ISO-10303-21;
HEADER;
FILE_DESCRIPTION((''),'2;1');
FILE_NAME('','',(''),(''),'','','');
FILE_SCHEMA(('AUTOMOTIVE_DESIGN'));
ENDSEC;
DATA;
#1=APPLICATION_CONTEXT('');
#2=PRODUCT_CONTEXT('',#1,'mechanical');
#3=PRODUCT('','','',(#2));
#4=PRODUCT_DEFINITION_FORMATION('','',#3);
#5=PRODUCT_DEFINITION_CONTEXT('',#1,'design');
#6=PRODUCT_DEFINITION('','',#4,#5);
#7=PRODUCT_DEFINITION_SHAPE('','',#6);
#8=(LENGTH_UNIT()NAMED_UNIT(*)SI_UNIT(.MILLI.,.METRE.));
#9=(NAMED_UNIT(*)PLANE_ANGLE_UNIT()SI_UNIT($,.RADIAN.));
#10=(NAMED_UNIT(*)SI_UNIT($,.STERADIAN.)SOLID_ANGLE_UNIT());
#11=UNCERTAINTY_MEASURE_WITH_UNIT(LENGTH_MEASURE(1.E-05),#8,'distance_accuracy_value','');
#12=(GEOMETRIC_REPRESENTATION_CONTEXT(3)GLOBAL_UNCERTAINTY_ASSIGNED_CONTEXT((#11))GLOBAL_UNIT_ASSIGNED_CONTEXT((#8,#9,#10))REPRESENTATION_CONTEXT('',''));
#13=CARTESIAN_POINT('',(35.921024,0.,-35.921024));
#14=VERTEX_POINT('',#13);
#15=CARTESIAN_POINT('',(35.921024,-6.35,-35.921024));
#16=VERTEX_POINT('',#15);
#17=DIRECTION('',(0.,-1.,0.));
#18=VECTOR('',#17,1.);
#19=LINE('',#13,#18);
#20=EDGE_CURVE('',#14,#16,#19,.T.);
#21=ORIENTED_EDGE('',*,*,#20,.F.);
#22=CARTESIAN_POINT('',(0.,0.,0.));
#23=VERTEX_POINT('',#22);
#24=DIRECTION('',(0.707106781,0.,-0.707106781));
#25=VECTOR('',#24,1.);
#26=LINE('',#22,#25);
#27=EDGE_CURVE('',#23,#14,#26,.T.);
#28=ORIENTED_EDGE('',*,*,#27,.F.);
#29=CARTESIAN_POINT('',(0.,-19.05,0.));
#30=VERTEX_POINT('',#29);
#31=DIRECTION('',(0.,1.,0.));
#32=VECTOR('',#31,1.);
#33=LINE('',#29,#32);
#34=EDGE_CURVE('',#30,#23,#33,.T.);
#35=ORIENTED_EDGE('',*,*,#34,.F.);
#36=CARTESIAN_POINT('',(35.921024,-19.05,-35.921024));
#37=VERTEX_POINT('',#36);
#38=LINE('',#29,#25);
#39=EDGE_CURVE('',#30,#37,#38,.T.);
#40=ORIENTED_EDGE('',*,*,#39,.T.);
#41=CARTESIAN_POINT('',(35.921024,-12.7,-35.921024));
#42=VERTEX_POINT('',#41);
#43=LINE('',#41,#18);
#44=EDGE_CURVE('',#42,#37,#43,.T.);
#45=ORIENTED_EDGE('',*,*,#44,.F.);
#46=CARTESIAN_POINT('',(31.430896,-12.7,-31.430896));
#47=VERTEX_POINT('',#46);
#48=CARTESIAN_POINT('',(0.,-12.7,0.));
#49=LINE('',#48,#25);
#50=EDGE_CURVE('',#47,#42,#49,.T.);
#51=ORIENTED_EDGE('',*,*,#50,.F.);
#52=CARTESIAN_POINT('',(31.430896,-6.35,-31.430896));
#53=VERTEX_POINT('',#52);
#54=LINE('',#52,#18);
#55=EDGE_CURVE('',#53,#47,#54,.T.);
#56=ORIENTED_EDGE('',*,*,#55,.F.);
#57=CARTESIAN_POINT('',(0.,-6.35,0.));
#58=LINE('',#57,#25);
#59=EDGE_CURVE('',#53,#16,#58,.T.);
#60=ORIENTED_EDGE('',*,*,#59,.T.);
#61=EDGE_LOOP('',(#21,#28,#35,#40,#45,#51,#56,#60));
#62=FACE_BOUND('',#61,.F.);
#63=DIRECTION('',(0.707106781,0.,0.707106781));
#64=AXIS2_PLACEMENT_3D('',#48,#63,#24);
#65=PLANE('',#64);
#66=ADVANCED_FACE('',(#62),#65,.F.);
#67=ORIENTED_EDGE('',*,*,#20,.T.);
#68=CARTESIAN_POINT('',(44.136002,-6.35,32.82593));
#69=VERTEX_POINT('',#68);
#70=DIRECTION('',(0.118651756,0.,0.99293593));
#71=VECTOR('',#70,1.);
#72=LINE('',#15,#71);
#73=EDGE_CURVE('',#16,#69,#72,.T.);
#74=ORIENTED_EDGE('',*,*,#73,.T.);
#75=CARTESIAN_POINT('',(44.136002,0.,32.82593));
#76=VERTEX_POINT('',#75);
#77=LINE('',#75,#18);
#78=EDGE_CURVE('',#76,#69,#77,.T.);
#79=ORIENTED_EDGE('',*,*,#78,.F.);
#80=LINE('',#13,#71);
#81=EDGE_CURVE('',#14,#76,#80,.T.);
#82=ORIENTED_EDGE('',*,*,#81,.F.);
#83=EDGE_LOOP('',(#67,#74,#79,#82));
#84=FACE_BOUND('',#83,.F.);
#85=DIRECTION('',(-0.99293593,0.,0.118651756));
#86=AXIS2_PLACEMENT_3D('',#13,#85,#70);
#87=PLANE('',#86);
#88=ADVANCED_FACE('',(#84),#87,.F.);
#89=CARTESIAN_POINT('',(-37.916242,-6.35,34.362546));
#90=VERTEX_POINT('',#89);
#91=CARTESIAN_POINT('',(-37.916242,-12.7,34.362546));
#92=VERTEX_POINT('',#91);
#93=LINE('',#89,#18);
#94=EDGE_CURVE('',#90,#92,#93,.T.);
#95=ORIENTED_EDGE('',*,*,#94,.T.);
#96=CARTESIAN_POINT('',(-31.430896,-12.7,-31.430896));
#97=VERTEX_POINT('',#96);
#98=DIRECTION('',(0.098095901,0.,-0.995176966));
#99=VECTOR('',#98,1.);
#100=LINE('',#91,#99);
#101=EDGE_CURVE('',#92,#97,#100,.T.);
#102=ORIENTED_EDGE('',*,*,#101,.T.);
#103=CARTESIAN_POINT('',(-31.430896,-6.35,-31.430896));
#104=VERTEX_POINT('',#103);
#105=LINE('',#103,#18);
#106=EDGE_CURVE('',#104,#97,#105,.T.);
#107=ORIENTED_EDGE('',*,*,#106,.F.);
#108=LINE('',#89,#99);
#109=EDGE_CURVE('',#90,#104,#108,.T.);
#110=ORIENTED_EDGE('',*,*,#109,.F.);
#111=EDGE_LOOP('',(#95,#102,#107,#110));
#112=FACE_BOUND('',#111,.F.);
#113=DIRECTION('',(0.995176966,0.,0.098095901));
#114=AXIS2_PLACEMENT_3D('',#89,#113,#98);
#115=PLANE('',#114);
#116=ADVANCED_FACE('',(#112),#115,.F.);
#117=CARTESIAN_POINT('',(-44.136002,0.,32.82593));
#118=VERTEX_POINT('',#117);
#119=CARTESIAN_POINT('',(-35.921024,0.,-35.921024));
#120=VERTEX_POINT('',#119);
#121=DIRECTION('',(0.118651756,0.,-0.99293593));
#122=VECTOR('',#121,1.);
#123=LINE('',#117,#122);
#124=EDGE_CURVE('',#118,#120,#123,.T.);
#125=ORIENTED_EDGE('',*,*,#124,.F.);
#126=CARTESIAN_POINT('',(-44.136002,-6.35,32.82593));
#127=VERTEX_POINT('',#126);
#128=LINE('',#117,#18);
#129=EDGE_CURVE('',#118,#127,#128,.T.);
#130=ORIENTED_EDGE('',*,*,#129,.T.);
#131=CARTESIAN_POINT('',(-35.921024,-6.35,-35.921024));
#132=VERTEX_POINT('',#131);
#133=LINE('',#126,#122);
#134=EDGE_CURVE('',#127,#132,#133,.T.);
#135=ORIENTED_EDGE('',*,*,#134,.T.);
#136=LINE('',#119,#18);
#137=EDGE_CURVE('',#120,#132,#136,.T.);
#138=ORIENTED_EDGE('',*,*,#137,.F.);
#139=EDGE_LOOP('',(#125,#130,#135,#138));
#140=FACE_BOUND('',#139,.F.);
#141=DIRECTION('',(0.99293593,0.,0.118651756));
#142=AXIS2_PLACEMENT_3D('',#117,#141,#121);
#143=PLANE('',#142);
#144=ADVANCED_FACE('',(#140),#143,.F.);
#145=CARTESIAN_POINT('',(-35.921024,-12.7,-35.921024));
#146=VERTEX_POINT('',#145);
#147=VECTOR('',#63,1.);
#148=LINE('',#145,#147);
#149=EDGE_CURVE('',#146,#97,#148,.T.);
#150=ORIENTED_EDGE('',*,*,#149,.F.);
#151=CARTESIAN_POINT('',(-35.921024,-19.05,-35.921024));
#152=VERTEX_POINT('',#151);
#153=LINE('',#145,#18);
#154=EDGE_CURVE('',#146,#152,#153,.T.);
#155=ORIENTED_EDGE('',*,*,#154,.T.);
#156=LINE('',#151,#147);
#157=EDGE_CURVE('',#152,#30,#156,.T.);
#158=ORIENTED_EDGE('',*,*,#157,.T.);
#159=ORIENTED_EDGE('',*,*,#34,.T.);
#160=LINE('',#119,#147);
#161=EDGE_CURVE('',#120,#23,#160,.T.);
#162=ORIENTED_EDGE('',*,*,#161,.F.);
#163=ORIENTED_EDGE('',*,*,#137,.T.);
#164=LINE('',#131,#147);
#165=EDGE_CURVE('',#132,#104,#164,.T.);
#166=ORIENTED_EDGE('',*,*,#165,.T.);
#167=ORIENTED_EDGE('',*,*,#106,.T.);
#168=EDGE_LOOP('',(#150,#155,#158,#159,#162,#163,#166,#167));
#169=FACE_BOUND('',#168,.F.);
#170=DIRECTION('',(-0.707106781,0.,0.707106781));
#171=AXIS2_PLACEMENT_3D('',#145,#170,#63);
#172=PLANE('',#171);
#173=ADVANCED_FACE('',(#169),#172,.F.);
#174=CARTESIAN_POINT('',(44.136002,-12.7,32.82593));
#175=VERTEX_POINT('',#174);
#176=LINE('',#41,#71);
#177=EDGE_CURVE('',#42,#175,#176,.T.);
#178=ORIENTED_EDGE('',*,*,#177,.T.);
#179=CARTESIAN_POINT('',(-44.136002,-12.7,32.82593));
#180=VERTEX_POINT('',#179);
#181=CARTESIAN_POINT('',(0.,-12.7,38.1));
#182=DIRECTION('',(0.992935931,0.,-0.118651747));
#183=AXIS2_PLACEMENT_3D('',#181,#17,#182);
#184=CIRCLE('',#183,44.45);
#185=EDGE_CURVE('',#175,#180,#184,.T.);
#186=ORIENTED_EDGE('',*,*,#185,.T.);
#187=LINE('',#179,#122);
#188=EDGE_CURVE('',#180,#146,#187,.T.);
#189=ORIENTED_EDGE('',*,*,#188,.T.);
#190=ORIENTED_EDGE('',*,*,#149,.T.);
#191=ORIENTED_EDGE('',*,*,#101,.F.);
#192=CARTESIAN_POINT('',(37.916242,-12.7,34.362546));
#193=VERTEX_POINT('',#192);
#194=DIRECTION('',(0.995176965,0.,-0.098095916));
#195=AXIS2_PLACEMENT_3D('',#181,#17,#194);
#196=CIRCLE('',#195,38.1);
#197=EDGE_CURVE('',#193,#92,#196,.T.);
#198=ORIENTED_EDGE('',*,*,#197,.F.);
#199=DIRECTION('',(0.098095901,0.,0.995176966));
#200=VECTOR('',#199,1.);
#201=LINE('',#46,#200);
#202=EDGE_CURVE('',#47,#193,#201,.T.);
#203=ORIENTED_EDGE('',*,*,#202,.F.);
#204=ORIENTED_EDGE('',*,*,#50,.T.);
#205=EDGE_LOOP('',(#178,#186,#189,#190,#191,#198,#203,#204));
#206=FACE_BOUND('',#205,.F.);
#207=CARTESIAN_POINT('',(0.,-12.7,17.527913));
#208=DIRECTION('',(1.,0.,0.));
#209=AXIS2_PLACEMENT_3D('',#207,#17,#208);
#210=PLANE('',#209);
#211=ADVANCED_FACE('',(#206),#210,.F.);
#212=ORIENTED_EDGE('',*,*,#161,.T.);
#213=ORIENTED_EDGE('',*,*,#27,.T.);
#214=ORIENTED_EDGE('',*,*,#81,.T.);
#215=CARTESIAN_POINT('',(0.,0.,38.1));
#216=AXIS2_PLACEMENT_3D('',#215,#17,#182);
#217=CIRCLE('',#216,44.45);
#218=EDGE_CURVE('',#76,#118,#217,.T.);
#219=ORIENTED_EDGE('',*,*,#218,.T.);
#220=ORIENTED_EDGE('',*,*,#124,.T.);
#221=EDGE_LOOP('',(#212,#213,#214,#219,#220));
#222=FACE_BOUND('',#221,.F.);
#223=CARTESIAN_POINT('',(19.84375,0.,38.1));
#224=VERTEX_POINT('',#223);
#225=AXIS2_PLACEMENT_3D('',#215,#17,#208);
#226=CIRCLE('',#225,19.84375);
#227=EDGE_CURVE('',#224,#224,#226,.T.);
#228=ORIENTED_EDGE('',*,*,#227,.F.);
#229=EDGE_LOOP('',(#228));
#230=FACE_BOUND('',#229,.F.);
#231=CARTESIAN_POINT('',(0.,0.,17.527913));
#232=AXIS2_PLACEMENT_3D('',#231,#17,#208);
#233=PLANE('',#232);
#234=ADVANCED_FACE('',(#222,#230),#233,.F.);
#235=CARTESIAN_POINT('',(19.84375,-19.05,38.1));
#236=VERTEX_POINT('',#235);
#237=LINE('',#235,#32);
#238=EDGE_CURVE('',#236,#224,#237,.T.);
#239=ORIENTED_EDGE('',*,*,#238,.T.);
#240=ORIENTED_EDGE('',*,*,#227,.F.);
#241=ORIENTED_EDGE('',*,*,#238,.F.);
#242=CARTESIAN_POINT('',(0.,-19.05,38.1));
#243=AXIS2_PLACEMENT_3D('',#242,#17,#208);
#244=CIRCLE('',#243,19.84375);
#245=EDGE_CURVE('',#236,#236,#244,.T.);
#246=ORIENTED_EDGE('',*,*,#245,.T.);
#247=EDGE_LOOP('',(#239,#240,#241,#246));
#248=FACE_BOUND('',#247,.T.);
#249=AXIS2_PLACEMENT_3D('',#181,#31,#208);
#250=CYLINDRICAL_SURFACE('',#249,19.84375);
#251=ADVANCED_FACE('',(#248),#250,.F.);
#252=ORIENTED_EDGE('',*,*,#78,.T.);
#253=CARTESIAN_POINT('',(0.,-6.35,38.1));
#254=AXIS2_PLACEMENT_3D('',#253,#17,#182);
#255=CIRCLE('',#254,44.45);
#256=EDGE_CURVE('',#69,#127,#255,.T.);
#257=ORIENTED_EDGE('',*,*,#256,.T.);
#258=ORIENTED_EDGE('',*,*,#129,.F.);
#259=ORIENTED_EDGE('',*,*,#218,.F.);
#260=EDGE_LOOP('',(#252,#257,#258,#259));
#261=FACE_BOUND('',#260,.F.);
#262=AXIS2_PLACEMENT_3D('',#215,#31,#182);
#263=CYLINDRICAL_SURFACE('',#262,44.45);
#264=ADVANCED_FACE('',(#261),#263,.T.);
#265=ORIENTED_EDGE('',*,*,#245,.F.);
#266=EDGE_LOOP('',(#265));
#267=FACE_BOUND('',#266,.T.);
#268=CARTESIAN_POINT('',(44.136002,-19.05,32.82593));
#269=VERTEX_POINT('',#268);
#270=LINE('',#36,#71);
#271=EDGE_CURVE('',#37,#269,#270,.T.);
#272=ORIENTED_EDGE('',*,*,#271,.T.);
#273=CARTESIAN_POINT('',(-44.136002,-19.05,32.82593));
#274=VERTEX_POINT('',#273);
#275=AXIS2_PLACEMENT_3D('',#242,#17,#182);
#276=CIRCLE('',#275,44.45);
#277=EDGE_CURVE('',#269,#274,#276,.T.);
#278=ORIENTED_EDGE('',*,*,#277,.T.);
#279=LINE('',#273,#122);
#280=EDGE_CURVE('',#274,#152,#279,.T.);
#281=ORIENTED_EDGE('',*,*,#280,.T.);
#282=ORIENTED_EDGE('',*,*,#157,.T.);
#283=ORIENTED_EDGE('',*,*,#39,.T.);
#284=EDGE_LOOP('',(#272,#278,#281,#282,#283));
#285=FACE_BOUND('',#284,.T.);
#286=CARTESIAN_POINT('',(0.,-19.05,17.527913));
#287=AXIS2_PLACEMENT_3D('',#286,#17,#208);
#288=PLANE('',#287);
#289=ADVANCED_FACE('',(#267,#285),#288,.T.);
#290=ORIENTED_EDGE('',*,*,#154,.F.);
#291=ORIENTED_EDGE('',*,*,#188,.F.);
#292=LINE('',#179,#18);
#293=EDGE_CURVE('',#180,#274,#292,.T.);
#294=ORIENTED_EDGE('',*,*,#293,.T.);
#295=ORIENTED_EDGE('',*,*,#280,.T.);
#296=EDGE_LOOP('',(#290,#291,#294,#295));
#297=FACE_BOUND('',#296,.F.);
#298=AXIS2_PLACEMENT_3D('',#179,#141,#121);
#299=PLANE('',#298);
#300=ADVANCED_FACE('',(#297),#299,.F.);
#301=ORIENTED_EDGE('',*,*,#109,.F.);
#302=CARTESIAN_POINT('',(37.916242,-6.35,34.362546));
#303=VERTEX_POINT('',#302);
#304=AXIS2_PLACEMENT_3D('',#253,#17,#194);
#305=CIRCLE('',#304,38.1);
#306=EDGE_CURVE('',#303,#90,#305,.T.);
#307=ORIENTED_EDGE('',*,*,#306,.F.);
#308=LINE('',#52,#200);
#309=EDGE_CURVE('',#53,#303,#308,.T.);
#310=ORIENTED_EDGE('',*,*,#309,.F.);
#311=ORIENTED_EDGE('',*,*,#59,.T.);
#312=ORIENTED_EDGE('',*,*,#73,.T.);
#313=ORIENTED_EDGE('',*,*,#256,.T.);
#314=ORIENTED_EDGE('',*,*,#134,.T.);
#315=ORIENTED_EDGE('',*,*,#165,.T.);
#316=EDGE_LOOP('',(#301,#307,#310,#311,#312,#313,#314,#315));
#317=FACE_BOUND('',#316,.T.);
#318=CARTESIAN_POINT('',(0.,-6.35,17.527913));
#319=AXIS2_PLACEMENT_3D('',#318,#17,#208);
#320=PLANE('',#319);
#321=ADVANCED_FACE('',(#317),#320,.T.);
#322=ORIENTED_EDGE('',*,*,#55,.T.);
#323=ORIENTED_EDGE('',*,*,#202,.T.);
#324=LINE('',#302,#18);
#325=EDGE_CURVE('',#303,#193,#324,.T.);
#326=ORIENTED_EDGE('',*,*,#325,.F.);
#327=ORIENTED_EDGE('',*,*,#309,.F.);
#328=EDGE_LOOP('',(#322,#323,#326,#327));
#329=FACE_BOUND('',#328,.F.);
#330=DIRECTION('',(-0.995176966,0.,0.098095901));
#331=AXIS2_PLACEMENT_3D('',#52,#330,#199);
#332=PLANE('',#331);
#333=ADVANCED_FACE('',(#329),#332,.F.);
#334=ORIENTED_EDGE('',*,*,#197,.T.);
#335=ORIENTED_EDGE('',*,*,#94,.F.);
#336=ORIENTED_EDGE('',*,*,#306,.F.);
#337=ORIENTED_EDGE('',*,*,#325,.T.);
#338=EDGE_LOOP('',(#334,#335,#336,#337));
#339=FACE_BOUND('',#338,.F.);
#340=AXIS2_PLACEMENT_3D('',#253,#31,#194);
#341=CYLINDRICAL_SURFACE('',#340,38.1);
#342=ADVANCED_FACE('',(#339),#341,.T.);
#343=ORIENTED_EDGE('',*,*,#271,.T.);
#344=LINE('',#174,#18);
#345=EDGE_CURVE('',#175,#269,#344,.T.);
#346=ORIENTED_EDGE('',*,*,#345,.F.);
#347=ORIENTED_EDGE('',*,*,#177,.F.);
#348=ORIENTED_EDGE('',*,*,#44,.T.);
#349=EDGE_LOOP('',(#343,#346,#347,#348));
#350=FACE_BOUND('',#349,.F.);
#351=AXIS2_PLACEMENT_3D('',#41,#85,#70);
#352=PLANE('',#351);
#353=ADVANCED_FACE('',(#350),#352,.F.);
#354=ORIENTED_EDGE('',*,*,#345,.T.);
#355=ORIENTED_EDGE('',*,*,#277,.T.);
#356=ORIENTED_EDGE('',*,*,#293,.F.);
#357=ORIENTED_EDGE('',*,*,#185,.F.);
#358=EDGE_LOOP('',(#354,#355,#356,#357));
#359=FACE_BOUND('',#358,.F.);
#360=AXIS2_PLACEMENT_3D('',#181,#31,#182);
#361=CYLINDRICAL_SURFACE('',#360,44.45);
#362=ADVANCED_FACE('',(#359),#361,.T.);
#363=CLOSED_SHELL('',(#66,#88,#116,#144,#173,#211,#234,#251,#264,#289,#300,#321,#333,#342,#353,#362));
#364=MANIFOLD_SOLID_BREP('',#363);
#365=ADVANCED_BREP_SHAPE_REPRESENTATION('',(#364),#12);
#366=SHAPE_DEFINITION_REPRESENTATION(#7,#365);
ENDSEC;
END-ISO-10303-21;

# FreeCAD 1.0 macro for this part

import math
import FreeCAD as App
import Part
import Sketcher

V = App.Vector
Q = App.Units.Quantity

doc = App.newDocument("Part")
params = doc.addObject("Spreadsheet::Sheet", "Params")
for row, (alias, value) in enumerate([
    ("sketch1_radius", "1.75 in"),
    ("sketch1_length", "2 in"),
    ("sketch1_diameter", "1.5625 in"),
    ("pad1_length", "0.25 in"),
    ("sketch2_radius", "1.5 in"),
    ("sketch2_diameter", "1.5625 in"),
    ("sketch2_length", "1.75 in"),
    ("pad2_length", "0.25 in"),
    ("linearpattern_pitch", "0.5 in"),
], start=1):
    params.set(f"A{row}", alias)
    params.set(f"B{row}", "=" + value)
    params.setAlias(f"B{row}", alias)

body = doc.addObject("PartDesign::Body", "Body")

# Sketch on XZ plane
sketch1 = body.newObject("Sketcher::SketchObject", "Sketch")
sketch1.AttachmentSupport = (doc.getObject("XZ_Plane"), [""])
sketch1.MapMode = "FlatFace"
sketch1.addGeometry(Part.ArcOfCircle(Part.Circle(V(0, 38, 0), V(0, 0, 1), 44), math.radians(-7), math.radians(187)), False)
sketch1.addGeometry(Part.LineSegment(V(-44, 33, 0), V(-36, -36, 0)), False)
sketch1.addGeometry(Part.LineSegment(V(-36, -36, 0), V(0, 0, 0)), False)
sketch1.addGeometry(Part.LineSegment(V(0, 0, 0), V(36, -36, 0)), False)
sketch1.addGeometry(Part.LineSegment(V(36, -36, 0), V(44, 33, 0)), False)
sketch1.addGeometry(Part.Circle(V(0, 38, 0), V(0, 0, 1), 20), False)
sketch1.addConstraint(Sketcher.Constraint("Tangent", 0, 2, 1, 1))
sketch1.addConstraint(Sketcher.Constraint("Coincident", 1, 2, 2, 1))
sketch1.addConstraint(Sketcher.Constraint("Coincident", 2, 2, 3, 1))
sketch1.addConstraint(Sketcher.Constraint("Coincident", 3, 2, 4, 1))
sketch1.addConstraint(Sketcher.Constraint("Tangent", 4, 2, 0, 1))
sketch1.addConstraint(Sketcher.Constraint("Coincident", 2, 2, -1, 1))
sketch1.addConstraint(Sketcher.Constraint("Coincident", 5, 3, 0, 3))
sketch1.addConstraint(Sketcher.Constraint("Symmetric", 1, 2, 3, 2, -2))
sketch1.addConstraint(Sketcher.Constraint("PointOnObject", 0, 3, -2))
sketch1.addConstraint(Sketcher.Constraint("Perpendicular", 2, 3))
sketch1.addConstraint(Sketcher.Constraint("Radius", 0, Q("1.75 in")))
sketch1.addConstraint(Sketcher.Constraint("Distance", 2, Q("2 in")))
sketch1.addConstraint(Sketcher.Constraint("Diameter", 5, Q("1.5625 in")))
sketch1.addConstraint(Sketcher.Constraint("DistanceY", -1, 1, 0, 3, Q("1.5 in")))
sketch1.setExpression("Constraints[10]", "Params.sketch1_radius")
sketch1.setExpression("Constraints[11]", "Params.sketch1_length")
sketch1.setExpression("Constraints[12]", "Params.sketch1_diameter")
pad1 = body.newObject("PartDesign::Pad", "Pad")
pad1.Profile = sketch1
pad1.setExpression("Length", "Params.pad1_length")

# Sketch on XZ plane
sketch2 = body.newObject("Sketcher::SketchObject", "Sketch001")
sketch2.AttachmentSupport = (doc.getObject("XZ_Plane"), [""])
sketch2.MapMode = "FlatFace"
sketch2.AttachmentOffset = App.Placement(V(0, 0, 0.25 * 25.4), App.Rotation())
sketch2.addGeometry(Part.ArcOfCircle(Part.Circle(V(0, 38, 0), V(0, 0, 1), 38), math.radians(-6), math.radians(186)), False)
sketch2.addGeometry(Part.LineSegment(V(-38, 34, 0), V(-31, -31, 0)), False)
sketch2.addGeometry(Part.LineSegment(V(-31, -31, 0), V(0, 0, 0)), False)
sketch2.addGeometry(Part.LineSegment(V(0, 0, 0), V(31, -31, 0)), False)
sketch2.addGeometry(Part.LineSegment(V(31, -31, 0), V(38, 34, 0)), False)
sketch2.addGeometry(Part.Circle(V(0, 38, 0), V(0, 0, 1), 20), False)
sketch2.addConstraint(Sketcher.Constraint("Tangent", 0, 2, 1, 1))
sketch2.addConstraint(Sketcher.Constraint("Coincident", 1, 2, 2, 1))
sketch2.addConstraint(Sketcher.Constraint("Coincident", 2, 2, 3, 1))
sketch2.addConstraint(Sketcher.Constraint("Coincident", 3, 2, 4, 1))
sketch2.addConstraint(Sketcher.Constraint("Tangent", 4, 2, 0, 1))
sketch2.addConstraint(Sketcher.Constraint("Coincident", 2, 2, -1, 1))
sketch2.addConstraint(Sketcher.Constraint("Coincident", 5, 3, 0, 3))
sketch2.addConstraint(Sketcher.Constraint("Symmetric", 1, 2, 3, 2, -2))
sketch2.addConstraint(Sketcher.Constraint("PointOnObject", 0, 3, -2))
sketch2.addConstraint(Sketcher.Constraint("Perpendicular", 2, 3))
sketch2.addConstraint(Sketcher.Constraint("Radius", 0, Q("1.5 in")))
sketch2.addConstraint(Sketcher.Constraint("Diameter", 5, Q("1.5625 in")))
sketch2.addConstraint(Sketcher.Constraint("DistanceY", -1, 1, 0, 3, Q("1.5 in")))
sketch2.addConstraint(Sketcher.Constraint("Distance", 2, Q("1.75 in")))
sketch2.setExpression("Constraints[10]", "Params.sketch2_radius")
sketch2.setExpression("Constraints[11]", "Params.sketch2_diameter")
sketch2.setExpression("Constraints[13]", "Params.sketch2_length")
pad2 = body.newObject("PartDesign::Pad", "Pad001")
pad2.Profile = sketch2
pad2.setExpression("Length", "Params.pad2_length")
doc.recompute()

linearpattern = body.newObject("PartDesign::LinearPattern", "LinearPattern")
linearpattern.Originals = [pad1]
linearpattern.Direction = (doc.getObject("Y_Axis"), [""])
linearpattern.Mode = "offset"
linearpattern.setExpression("Offset", "Params.linearpattern_pitch")
linearpattern.Occurrences = 2
linearpattern.Reversed = True
body.Tip = linearpattern

doc.recompute()
